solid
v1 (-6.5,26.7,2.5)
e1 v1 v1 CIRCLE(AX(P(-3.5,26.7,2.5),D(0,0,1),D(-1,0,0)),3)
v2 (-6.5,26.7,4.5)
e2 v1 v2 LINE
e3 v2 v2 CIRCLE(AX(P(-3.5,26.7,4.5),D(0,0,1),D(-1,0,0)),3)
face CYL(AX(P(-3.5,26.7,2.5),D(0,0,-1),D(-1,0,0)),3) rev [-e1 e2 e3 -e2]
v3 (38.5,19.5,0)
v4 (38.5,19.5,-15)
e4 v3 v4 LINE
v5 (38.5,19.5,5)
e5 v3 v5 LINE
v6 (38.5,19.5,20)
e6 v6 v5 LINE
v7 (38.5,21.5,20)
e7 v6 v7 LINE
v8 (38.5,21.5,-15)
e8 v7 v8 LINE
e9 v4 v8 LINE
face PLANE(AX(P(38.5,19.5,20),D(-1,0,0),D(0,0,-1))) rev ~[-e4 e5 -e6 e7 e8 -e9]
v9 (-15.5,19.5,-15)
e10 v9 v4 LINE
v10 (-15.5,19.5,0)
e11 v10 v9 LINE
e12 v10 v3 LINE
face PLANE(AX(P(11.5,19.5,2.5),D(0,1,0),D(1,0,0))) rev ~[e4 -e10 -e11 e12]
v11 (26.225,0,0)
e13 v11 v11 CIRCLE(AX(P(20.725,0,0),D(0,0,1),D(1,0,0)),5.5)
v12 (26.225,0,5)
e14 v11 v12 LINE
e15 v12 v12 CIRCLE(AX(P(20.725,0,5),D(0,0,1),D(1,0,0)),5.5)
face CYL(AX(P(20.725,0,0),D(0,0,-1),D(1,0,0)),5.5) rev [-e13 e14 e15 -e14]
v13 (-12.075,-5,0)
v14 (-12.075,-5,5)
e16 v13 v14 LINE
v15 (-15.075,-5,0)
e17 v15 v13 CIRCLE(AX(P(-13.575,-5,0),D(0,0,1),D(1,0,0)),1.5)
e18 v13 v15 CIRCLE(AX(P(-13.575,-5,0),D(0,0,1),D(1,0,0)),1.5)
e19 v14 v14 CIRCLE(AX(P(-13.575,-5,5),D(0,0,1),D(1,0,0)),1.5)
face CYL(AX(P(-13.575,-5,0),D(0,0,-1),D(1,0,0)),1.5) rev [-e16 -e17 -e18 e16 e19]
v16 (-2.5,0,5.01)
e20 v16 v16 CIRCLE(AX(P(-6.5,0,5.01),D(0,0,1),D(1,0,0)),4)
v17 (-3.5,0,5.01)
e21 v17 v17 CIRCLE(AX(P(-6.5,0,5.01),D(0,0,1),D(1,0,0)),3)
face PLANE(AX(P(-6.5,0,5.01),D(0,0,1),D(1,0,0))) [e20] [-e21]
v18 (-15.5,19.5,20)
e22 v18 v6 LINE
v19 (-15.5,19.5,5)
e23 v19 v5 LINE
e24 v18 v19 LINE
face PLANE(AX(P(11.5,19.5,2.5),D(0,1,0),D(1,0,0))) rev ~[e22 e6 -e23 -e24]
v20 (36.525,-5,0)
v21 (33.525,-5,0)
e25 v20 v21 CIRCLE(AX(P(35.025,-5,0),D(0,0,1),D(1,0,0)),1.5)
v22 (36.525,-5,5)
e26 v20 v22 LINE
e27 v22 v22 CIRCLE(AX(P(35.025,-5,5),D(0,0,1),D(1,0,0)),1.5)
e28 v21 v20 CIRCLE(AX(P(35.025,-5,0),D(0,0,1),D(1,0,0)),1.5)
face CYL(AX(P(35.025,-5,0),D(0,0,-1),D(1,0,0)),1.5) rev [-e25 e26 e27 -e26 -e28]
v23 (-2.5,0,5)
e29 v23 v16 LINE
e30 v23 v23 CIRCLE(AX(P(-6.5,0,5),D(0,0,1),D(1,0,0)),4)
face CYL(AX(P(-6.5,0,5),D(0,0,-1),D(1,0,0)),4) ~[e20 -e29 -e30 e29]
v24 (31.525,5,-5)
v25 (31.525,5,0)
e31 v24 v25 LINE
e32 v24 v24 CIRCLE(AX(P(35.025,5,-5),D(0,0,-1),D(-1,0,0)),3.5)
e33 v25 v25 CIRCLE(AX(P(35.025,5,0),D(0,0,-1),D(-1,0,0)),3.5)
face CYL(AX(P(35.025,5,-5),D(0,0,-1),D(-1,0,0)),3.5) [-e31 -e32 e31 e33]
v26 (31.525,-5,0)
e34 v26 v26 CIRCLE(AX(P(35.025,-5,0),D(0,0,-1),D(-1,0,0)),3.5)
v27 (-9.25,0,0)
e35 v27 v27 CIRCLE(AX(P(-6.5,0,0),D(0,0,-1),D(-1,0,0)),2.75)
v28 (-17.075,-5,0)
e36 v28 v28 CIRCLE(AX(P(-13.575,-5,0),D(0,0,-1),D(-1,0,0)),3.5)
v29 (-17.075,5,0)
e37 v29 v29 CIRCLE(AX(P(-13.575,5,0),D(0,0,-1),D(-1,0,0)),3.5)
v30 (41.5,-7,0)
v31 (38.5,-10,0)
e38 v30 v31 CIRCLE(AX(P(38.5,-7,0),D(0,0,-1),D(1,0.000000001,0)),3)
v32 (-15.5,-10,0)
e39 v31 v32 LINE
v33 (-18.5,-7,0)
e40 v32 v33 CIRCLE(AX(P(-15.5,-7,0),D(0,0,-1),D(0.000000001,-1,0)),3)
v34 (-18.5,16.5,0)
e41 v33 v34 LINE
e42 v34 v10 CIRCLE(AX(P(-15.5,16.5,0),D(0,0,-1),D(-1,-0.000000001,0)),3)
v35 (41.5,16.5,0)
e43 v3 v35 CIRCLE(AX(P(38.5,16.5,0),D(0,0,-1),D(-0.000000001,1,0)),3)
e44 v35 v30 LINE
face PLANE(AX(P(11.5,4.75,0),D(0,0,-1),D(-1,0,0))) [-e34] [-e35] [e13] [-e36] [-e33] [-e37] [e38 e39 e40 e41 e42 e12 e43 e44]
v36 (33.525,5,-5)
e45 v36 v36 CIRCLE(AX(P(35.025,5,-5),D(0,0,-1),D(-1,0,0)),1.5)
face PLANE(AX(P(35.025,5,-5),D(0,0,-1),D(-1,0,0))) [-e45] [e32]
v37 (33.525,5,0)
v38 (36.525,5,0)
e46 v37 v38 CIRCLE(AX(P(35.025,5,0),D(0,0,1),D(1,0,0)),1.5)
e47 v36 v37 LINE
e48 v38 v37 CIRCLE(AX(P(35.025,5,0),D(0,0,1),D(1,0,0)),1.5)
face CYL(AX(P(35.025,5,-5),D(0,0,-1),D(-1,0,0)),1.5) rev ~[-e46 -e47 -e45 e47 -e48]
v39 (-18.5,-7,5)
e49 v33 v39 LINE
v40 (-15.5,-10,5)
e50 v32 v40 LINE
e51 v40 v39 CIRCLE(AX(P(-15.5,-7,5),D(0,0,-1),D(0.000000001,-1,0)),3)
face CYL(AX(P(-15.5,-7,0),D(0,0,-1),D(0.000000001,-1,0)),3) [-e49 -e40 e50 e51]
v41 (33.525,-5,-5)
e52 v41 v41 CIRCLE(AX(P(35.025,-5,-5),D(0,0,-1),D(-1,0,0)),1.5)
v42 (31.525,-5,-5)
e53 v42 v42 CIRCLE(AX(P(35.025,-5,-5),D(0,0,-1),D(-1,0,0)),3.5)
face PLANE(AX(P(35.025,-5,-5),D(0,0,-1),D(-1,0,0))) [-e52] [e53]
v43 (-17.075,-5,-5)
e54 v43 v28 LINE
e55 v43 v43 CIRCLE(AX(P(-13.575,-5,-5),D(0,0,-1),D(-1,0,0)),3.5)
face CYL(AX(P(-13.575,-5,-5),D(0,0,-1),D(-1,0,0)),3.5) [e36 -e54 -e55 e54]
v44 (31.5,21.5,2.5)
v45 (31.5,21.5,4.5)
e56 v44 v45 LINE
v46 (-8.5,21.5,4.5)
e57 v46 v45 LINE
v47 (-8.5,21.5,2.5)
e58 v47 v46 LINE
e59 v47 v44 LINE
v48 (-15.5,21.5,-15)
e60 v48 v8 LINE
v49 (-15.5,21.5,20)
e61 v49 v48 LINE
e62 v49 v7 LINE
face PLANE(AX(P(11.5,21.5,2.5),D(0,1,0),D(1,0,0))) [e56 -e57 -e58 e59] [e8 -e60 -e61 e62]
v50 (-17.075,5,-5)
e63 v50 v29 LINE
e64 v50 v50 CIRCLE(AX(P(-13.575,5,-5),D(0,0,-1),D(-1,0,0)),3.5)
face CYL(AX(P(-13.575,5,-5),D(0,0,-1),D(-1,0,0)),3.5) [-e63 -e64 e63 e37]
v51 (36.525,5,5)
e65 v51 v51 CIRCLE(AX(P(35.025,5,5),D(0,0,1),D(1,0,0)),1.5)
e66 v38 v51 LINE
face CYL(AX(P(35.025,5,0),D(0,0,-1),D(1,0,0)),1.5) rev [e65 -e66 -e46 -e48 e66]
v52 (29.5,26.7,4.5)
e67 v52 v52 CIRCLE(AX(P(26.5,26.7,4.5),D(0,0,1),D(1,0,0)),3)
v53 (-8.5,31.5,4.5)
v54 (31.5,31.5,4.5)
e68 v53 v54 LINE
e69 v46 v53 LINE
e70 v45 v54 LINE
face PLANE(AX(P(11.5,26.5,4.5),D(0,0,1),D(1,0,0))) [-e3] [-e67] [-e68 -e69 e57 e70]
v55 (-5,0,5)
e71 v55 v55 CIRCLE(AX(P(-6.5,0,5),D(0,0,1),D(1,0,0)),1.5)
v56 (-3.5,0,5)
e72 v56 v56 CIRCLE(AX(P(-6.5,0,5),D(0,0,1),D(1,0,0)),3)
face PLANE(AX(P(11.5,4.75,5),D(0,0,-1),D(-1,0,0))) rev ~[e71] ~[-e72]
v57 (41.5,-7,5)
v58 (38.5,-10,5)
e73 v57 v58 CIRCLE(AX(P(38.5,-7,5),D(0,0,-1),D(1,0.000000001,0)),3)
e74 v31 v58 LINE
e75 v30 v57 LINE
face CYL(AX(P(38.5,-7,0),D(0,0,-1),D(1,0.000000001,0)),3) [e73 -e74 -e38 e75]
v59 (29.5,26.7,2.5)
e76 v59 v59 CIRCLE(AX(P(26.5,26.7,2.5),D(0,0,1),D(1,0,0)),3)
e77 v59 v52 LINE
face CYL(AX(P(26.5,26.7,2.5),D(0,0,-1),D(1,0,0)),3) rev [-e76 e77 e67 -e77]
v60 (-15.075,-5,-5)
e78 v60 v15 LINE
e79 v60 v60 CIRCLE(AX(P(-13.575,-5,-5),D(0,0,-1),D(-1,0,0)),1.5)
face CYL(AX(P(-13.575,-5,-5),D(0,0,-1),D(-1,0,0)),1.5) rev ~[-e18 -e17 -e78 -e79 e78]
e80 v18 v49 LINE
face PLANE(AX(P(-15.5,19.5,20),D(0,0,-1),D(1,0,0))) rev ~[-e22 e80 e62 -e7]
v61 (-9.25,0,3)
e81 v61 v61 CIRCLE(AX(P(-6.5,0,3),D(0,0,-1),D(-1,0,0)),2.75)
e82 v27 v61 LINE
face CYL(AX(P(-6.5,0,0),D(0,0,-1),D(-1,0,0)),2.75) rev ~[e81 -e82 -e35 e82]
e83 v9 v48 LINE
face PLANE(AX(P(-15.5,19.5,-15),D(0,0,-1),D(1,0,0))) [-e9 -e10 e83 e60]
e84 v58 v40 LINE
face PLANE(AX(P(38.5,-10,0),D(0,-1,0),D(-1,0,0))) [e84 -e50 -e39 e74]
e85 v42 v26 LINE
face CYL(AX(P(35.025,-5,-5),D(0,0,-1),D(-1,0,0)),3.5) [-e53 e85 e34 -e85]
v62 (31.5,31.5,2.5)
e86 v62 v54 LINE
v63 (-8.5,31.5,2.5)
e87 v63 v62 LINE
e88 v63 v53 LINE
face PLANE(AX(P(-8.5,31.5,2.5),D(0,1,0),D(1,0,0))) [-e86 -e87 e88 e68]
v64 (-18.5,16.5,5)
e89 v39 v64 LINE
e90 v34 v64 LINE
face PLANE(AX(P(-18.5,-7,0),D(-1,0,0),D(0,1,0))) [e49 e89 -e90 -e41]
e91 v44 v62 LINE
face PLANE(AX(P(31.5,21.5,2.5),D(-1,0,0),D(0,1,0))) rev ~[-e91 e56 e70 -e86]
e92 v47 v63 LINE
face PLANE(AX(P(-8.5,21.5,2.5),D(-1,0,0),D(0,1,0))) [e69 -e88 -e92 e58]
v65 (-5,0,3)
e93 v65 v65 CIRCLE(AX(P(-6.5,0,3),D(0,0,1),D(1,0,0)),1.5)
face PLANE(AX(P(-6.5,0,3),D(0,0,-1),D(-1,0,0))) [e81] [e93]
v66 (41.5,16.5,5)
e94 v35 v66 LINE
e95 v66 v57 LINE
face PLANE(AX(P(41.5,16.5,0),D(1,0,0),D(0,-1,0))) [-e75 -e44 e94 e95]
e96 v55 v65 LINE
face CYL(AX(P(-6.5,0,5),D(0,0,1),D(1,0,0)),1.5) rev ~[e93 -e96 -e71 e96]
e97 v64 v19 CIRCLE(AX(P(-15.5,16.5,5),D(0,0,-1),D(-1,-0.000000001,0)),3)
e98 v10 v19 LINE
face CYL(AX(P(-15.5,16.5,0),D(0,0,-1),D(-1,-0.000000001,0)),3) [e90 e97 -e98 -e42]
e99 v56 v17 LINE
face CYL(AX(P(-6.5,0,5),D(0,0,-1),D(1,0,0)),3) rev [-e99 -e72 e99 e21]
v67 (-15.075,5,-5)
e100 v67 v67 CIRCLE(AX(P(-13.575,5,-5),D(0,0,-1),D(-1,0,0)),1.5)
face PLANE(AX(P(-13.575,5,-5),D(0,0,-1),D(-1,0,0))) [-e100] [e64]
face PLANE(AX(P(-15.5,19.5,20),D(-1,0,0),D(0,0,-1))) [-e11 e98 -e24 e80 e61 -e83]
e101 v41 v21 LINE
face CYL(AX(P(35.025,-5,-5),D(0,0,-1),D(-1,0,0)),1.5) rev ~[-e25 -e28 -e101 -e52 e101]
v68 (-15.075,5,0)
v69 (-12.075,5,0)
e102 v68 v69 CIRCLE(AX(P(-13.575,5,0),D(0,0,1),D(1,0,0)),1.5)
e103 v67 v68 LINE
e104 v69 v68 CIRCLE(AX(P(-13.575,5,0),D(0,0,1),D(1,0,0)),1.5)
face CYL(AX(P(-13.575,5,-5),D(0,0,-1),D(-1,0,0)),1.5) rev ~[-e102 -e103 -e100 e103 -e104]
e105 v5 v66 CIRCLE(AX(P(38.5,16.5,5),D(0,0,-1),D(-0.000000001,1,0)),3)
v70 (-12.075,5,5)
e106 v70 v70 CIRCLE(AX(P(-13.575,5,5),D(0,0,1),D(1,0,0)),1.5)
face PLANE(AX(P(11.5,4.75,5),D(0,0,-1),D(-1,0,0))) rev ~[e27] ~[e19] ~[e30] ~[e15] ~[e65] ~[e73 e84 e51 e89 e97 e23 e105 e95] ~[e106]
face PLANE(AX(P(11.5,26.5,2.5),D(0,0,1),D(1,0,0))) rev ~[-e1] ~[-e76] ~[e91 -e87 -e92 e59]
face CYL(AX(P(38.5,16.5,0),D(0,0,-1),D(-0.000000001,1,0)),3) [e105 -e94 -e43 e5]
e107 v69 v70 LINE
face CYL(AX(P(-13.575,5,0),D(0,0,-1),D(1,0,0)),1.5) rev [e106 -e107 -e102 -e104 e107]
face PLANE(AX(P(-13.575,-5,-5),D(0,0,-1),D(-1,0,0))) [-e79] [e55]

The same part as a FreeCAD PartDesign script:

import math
import FreeCAD as App
import Part
import Sketcher
from FreeCAD import Vector


def add_polygon(sketch, points):
    """Adds a closed chain of lines whose ends are joined by coincident constraints."""
    first, n = sketch.GeometryCount, len(points)
    for a, b in zip(points, points[1:] + points[:1]):
        sketch.addGeometry(Part.LineSegment(App.Vector(*a, 0), App.Vector(*b, 0)), False)
    for i in range(n):
        sketch.addConstraint(Sketcher.Constraint("Coincident", first + i, 2, first + (i + 1) % n, 1))

doc = App.newDocument("Part")
params = doc.addObject("Spreadsheet::Sheet", "Params")
for row, (alias, value) in enumerate([
    ("sketch1_diameter", "3 mm"),
    ("sketch1_diameter2", "11 mm"),
    ("sketch1_radius", "3 mm"),
    ("sketch1_width", "54 mm"),
    ("sketch1_height", "23.5 mm"),
    ("pad1_length", "5 mm"),
    ("sketch2_diameter", "8 mm"),
    ("sketch2_diameter2", "6 mm"),
    ("pad2_length", "0.01 mm"),
    ("sketch3_width", "54 mm"),
    ("sketch3_height", "35 mm"),
    ("pad3_length", "2 mm"),
    ("sketch4_diameter", "7 mm"),
    ("sketch4_diameter2", "3 mm"),
    ("pad4_length", "5 mm"),
    ("sketch5_diameter", "6 mm"),
    ("sketch5_width", "40 mm"),
    ("sketch5_height", "10 mm"),
    ("pad5_length", "2 mm"),
    ("sketch6_diameter", "3 mm"),
    ("pocket1_length", "10 mm"),
    ("sketch7_diameter", "5.5 mm"),
    ("pocket2_length", "3 mm"),
], start=1):
    params.set(f"A{row}", alias)
    params.set(f"B{row}", "=" + value)
    params.setAlias(f"B{row}", alias)

body = doc.addObject("PartDesign::Body", "Body")

sketch1 = body.newObject("Sketcher::SketchObject", "Sketch")
sketch1.AttachmentSupport = (doc.getObject("XY_Plane"), [""])
sketch1.MapMode = "FlatFace"
sketch1.addGeometry([
    Part.LineSegment(Vector(38.5, 19.5, 0), Vector(-15.5, 19.5, 0)),
    Part.ArcOfCircle(Part.Circle(Vector(-15.5, 16.5, 0), Vector(0, 0, 1), 3), math.radians(90), math.radians(180)),
    Part.LineSegment(Vector(-18.5, 16.5, 0), Vector(-18.5, -7, 0)),
    Part.ArcOfCircle(Part.Circle(Vector(-15.5, -7, 0), Vector(0, 0, 1), 3), math.radians(180), math.radians(270)),
    Part.LineSegment(Vector(-15.5, -10, 0), Vector(38.5, -10, 0)),
    Part.ArcOfCircle(Part.Circle(Vector(38.5, -7, 0), Vector(0, 0, 1), 3), math.radians(-90), math.radians(0)),
    Part.LineSegment(Vector(41.5, -7, 0), Vector(41.5, 16.5, 0)),
    Part.ArcOfCircle(Part.Circle(Vector(38.5, 16.5, 0), Vector(0, 0, 1), 3), math.radians(0), math.radians(90)),
    Part.Circle(Vector(35, -5, 0), Vector(0, 0, 1), 1.5),
    Part.Circle(Vector(-13.6, -5, 0), Vector(0, 0, 1), 1.5),
    Part.Circle(Vector(20.7, 0, 0), Vector(0, 0, 1), 5.5),
    Part.Circle(Vector(35, 5, 0), Vector(0, 0, 1), 1.5),
    Part.Circle(Vector(-13.6, 5, 0), Vector(0, 0, 1), 1.5),
], False)
sketch1.addConstraint([
    Sketcher.Constraint("Tangent", 0, 2, 1, 1),
    Sketcher.Constraint("Tangent", 1, 2, 2, 1),
    Sketcher.Constraint("Tangent", 2, 2, 3, 1),
    Sketcher.Constraint("Tangent", 3, 2, 4, 1),
    Sketcher.Constraint("Tangent", 4, 2, 5, 1),
    Sketcher.Constraint("Tangent", 5, 2, 6, 1),
    Sketcher.Constraint("Tangent", 6, 2, 7, 1),
    Sketcher.Constraint("Tangent", 7, 2, 0, 1),
    Sketcher.Constraint("Horizontal", 0),
    Sketcher.Constraint("Vertical", 2),
    Sketcher.Constraint("Horizontal", 4),
    Sketcher.Constraint("Vertical", 6),
    Sketcher.Constraint("Equal", 1, 3),
    Sketcher.Constraint("Equal", 3, 5),
    Sketcher.Constraint("Equal", 5, 7),
    Sketcher.Constraint("Equal", 8, 9),
    Sketcher.Constraint("Equal", 9, 11),
    Sketcher.Constraint("Equal", 11, 12),
    Sketcher.Constraint("Symmetric", 8, 3, 11, 3, -1),
    Sketcher.Constraint("Symmetric", 9, 3, 12, 3, -1),
    Sketcher.Constraint("PointOnObject", 10, 3, -1),
    Sketcher.Constraint("Horizontal", 8, 3, 9, 3),
    Sketcher.Constraint("Diameter", 8, 3.0),
    Sketcher.Constraint("Diameter", 10, 11.0),
    Sketcher.Constraint("Radius", 1, 3.0),
    Sketcher.Constraint("DistanceX", 0, 2, 0, 1, 54.0),
    Sketcher.Constraint("DistanceY", 2, 2, 2, 1, 23.5),
    Sketcher.Constraint("DistanceY", 3, 3, -1, 1, 7.0),
    Sketcher.Constraint("DistanceY", 8, 3, -1, 1, 5.0),
    Sketcher.Constraint("DistanceX", 1, 3, -1, 1, 15.5),
    Sketcher.Constraint("DistanceX", 9, 3, 8, 3, 48.6),
    Sketcher.Constraint("DistanceX", 10, 3, 8, 3, 14.3),
    Sketcher.Constraint("DistanceX", -1, 1, 8, 3, 35.025),
])
sketch1.setExpression("Constraints[22]", "Params.sketch1_diameter")
sketch1.setExpression("Constraints[23]", "Params.sketch1_diameter2")
sketch1.setExpression("Constraints[24]", "Params.sketch1_radius")
sketch1.setExpression("Constraints[25]", "Params.sketch1_width")
sketch1.setExpression("Constraints[26]", "Params.sketch1_height")
pad1 = body.newObject("PartDesign::Pad", "Pad")
pad1.Profile = sketch1
pad1.setExpression("Length", "Params.pad1_length")

sketch2 = body.newObject("Sketcher::SketchObject", "Sketch001")
sketch2.AttachmentSupport = (doc.getObject("XY_Plane"), [""])
sketch2.MapMode = "FlatFace"
sketch2.AttachmentOffset = App.Placement(Vector(0, 0, 5), App.Rotation())
sketch2.addGeometry([
    Part.Circle(Vector(-6.5, 0, 0), Vector(0, 0, 1), 4),
    Part.Circle(Vector(-6.5, 0, 0), Vector(0, 0, 1), 3),
], False)
sketch2.addConstraint([
    Sketcher.Constraint("Coincident", 1, 3, 0, 3),
    Sketcher.Constraint("PointOnObject", 0, 3, -1),
    Sketcher.Constraint("Diameter", 0, 8.0),
    Sketcher.Constraint("Diameter", 1, 6.0),
    Sketcher.Constraint("DistanceX", 0, 3, -1, 1, 6.5),
])
sketch2.setExpression("Constraints[2]", "Params.sketch2_diameter")
sketch2.setExpression("Constraints[3]", "Params.sketch2_diameter2")
pad2 = body.newObject("PartDesign::Pad", "Pad001")
pad2.Profile = sketch2
pad2.setExpression("Length", "Params.pad2_length")

sketch3 = body.newObject("Sketcher::SketchObject", "Sketch002")
sketch3.AttachmentSupport = (doc.getObject("XZ_Plane"), [""])
sketch3.MapMode = "FlatFace"
sketch3.AttachmentOffset = App.Placement(Vector(0, 0, -19.5), App.Rotation())
add_polygon(sketch3, [(-16, -15), (-16, 20), (38, 20), (38, -15)])
sketch3.addConstraint([
    Sketcher.Constraint("Vertical", 0),
    Sketcher.Constraint("Horizontal", 1),
    Sketcher.Constraint("Vertical", 2),
    Sketcher.Constraint("Horizontal", 3),
    Sketcher.Constraint("DistanceX", 1, 1, 1, 2, 54.0),
    Sketcher.Constraint("DistanceY", 0, 1, 0, 2, 35.0),
    Sketcher.Constraint("DistanceY", -1, 1, 0, 2, 20.0),
    Sketcher.Constraint("DistanceX", 0, 2, -1, 1, 15.5),
])
sketch3.setExpression("Constraints[8]", "Params.sketch3_width")
sketch3.setExpression("Constraints[9]", "Params.sketch3_height")
pad3 = body.newObject("PartDesign::Pad", "Pad002")
pad3.Profile = sketch3
pad3.setExpression("Length", "Params.pad3_length")
pad3.Reversed = True

sketch4 = body.newObject("Sketcher::SketchObject", "Sketch003")
sketch4.AttachmentSupport = (doc.getObject("XY_Plane"), [""])
sketch4.MapMode = "FlatFace"
sketch4.AttachmentOffset = App.Placement(Vector(0, 0, -5), App.Rotation())
sketch4.addGeometry([
    Part.Circle(Vector(35, 5, 0), Vector(0, 0, 1), 3.5),
    Part.Circle(Vector(35, 5, 0), Vector(0, 0, 1), 1.5),
    Part.Circle(Vector(35, -5, 0), Vector(0, 0, 1), 3.5),
    Part.Circle(Vector(35, -5, 0), Vector(0, 0, 1), 1.5),
    Part.Circle(Vector(-13.6, 5, 0), Vector(0, 0, 1), 3.5),
    Part.Circle(Vector(-13.6, 5, 0), Vector(0, 0, 1), 1.5),
    Part.Circle(Vector(-13.6, -5, 0), Vector(0, 0, 1), 3.5),
    Part.Circle(Vector(-13.6, -5, 0), Vector(0, 0, 1), 1.5),
], False)
sketch4.addConstraint([
    Sketcher.Constraint("Coincident", 1, 3, 0, 3),
    Sketcher.Constraint("Coincident", 3, 3, 2, 3),
    Sketcher.Constraint("Coincident", 5, 3, 4, 3),
    Sketcher.Constraint("Coincident", 7, 3, 6, 3),
    Sketcher.Constraint("Equal", 0, 2),
    Sketcher.Constraint("Equal", 1, 3),
    Sketcher.Constraint("Equal", 2, 4),
    Sketcher.Constraint("Equal", 3, 5),
    Sketcher.Constraint("Equal", 4, 6),
    Sketcher.Constraint("Equal", 5, 7),
    Sketcher.Constraint("Symmetric", 0, 3, 2, 3, -1),
    Sketcher.Constraint("Symmetric", 4, 3, 6, 3, -1),
    Sketcher.Constraint("Horizontal", 1, 3, 4, 3),
    Sketcher.Constraint("Diameter", 0, 7.0),
    Sketcher.Constraint("Diameter", 1, 3.0),
    Sketcher.Constraint("DistanceY", -1, 1, 0, 3, 5.0),
    Sketcher.Constraint("DistanceX", 4, 3, 0, 3, 48.6),
    Sketcher.Constraint("DistanceX", -1, 1, 0, 3, 35.025),
])
sketch4.setExpression("Constraints[13]", "Params.sketch4_diameter")
sketch4.setExpression("Constraints[14]", "Params.sketch4_diameter2")
pad4 = body.newObject("PartDesign::Pad", "Pad003")
pad4.Profile = sketch4
pad4.setExpression("Length", "Params.pad4_length")

sketch5 = body.newObject("Sketcher::SketchObject", "Sketch004")
sketch5.AttachmentSupport = (doc.getObject("XY_Plane"), [""])
sketch5.MapMode = "FlatFace"
sketch5.AttachmentOffset = App.Placement(Vector(0, 0, 2.5), App.Rotation())
add_polygon(sketch5, [(-8.5, 31.5), (-8.5, 21.5), (31.5, 21.5), (31.5, 31.5)])
sketch5.addGeometry(Part.Circle(Vector(-3.5, 26.7, 0), Vector(0, 0, 1), 3), False)
sketch5.addGeometry(Part.Circle(Vector(26.5, 26.7, 0), Vector(0, 0, 1), 3), False)
sketch5.addConstraint([
    Sketcher.Constraint("Vertical", 0),
    Sketcher.Constraint("Horizontal", 1),
    Sketcher.Constraint("Vertical", 2),
    Sketcher.Constraint("Horizontal", 3),
    Sketcher.Constraint("Equal", 4, 5),
    Sketcher.Constraint("Horizontal", 4, 3, 5, 3),
    Sketcher.Constraint("Diameter", 4, 6.0),
    Sketcher.Constraint("DistanceX", 1, 1, 1, 2, 40.0),
    Sketcher.Constraint("DistanceY", 0, 2, 0, 1, 10.0),
    Sketcher.Constraint("DistanceX", 4, 3, 5, 3, 30.0),
    Sketcher.Constraint("DistanceX", 0, 2, 4, 3, 5.0),
    Sketcher.Constraint("DistanceX", 4, 3, -1, 1, 3.5),
    Sketcher.Constraint("DistanceY", -1, 1, 4, 3, 26.7),
    Sketcher.Constraint("DistanceY", -1, 1, 0, 2, 21.5),
])
sketch5.setExpression("Constraints[10]", "Params.sketch5_diameter")
sketch5.setExpression("Constraints[11]", "Params.sketch5_width")
sketch5.setExpression("Constraints[12]", "Params.sketch5_height")
pad5 = body.newObject("PartDesign::Pad", "Pad004")
pad5.Profile = sketch5
pad5.setExpression("Length", "Params.pad5_length")

sketch6 = body.newObject("Sketcher::SketchObject", "Sketch005")
sketch6.AttachmentSupport = (doc.getObject("XY_Plane"), [""])
sketch6.MapMode = "FlatFace"
sketch6.AttachmentOffset = App.Placement(Vector(0, 0, 5), App.Rotation())
sketch6.addGeometry(Part.Circle(Vector(-6.5, 0, 0), Vector(0, 0, 1), 1.5), False)
sketch6.addConstraint([
    Sketcher.Constraint("PointOnObject", 0, 3, -1),
    Sketcher.Constraint("Diameter", 0, 3.0),
    Sketcher.Constraint("DistanceX", 0, 3, -1, 1, 6.5),
])
sketch6.setExpression("Constraints[1]", "Params.sketch6_diameter")
pocket1 = body.newObject("PartDesign::Pocket", "Pocket")
pocket1.Profile = sketch6
pocket1.setExpression("Length", "Params.pocket1_length")

sketch7 = body.newObject("Sketcher::SketchObject", "Sketch006")
sketch7.AttachmentSupport = (doc.getObject("XY_Plane"), [""])
sketch7.MapMode = "FlatFace"
sketch7.addGeometry(Part.Circle(Vector(-6.5, 0, 0), Vector(0, 0, 1), 2.8), False)
sketch7.addConstraint([
    Sketcher.Constraint("PointOnObject", 0, 3, -1),
    Sketcher.Constraint("Diameter", 0, 5.5),
    Sketcher.Constraint("DistanceX", 0, 3, -1, 1, 6.5),
])
sketch7.setExpression("Constraints[1]", "Params.sketch7_diameter")
pocket2 = body.newObject("PartDesign::Pocket", "Pocket001")
pocket2.Profile = sketch7
pocket2.setExpression("Length", "Params.pocket2_length")
pocket2.Reversed = True

doc.recompute()
